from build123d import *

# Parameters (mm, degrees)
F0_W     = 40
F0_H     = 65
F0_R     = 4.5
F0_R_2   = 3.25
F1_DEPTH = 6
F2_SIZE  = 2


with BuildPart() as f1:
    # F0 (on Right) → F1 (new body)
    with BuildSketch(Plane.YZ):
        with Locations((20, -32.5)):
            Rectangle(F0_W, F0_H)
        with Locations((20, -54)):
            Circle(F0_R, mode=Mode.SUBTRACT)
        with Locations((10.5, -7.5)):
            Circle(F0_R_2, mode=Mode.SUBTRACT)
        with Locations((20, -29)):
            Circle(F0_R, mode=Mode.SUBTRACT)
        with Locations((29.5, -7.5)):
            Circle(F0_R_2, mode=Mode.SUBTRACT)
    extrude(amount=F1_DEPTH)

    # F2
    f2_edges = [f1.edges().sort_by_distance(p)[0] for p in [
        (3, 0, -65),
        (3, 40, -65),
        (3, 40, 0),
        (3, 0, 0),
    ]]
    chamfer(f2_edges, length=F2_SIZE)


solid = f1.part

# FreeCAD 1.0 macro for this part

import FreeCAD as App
import Part
import Sketcher
Q = App.Units.Quantity


def edges_at(feature, points):
    """Names of the edges that pass closest to the given points."""
    edges = feature.Shape.Edges
    near = lambda p: min(range(len(edges)), key=lambda i: edges[i].distToShape(Part.Vertex(*p))[0])
    return sorted({f"Edge{near(p) + 1}" for p in points})

doc = App.newDocument("Part")
body = doc.addObject("PartDesign::Body", "Body")

# Sketch on YZ plane
sketch1 = doc.addObject("Sketcher::SketchObject", "Sketch")
body.addObject(sketch1)
sketch1.AttachmentSupport = (doc.YZ_Plane, [""])
sketch1.MapMode = "FlatFace"
sketch1.addGeometry([
    Part.LineSegment(App.Vector(0, 0, 0), App.Vector(0, -65, 0)),  # 0
    Part.LineSegment(App.Vector(0, -65, 0), App.Vector(40, -65, 0)),  # 1
    Part.LineSegment(App.Vector(40, -65, 0), App.Vector(40, 0, 0)),  # 2
    Part.LineSegment(App.Vector(40, 0, 0), App.Vector(0, 0, 0)),  # 3
    Part.Circle(App.Vector(20, -54, 0), App.Vector(0, 0, 1), 4.5),  # 4
    Part.Circle(App.Vector(10.5, -7.5, 0), App.Vector(0, 0, 1), 3.2),  # 5
    Part.Circle(App.Vector(20, -29, 0), App.Vector(0, 0, 1), 4.5),  # 6
    Part.Circle(App.Vector(29.5, -7.5, 0), App.Vector(0, 0, 1), 3.2),  # 7
], False)
sketch1.addConstraint([
    Sketcher.Constraint("Coincident", 0, 2, 1, 1),
    Sketcher.Constraint("Coincident", 1, 2, 2, 1),
    Sketcher.Constraint("Coincident", 2, 2, 3, 1),
    Sketcher.Constraint("Coincident", 3, 2, 0, 1),
    Sketcher.Constraint("Vertical", 0),
    Sketcher.Constraint("Horizontal", 1),
    Sketcher.Constraint("Vertical", 2),
    Sketcher.Constraint("Horizontal", 3),
    Sketcher.Constraint("Coincident", 3, 2, -1, 1),
    Sketcher.Constraint("Equal", 4, 6),
    Sketcher.Constraint("Equal", 5, 7),
    Sketcher.Constraint("Horizontal", 5, 3, 7, 3),
    Sketcher.Constraint("Vertical", 4, 3, 6, 3),
    Sketcher.Constraint("Diameter", 4, Q("9 mm")),
    Sketcher.Constraint("Diameter", 5, Q("6.5 mm")),
    Sketcher.Constraint("DistanceX", 1, 1, 1, 2, Q("40 mm")),
    Sketcher.Constraint("DistanceY", 0, 2, 0, 1, Q("65 mm")),
    Sketcher.Constraint("DistanceX", -1, 1, 4, 3, Q("20 mm")),
    Sketcher.Constraint("DistanceY", 4, 3, -1, 1, Q("54 mm")),
    Sketcher.Constraint("DistanceY", 6, 3, -1, 1, Q("29 mm")),
    Sketcher.Constraint("DistanceX", 5, 3, 7, 3, Q("19 mm")),
    Sketcher.Constraint("DistanceX", -1, 1, 5, 3, Q("10.5 mm")),
    Sketcher.Constraint("DistanceY", 5, 3, -1, 1, Q("7.5 mm")),
])
pad1 = doc.addObject("PartDesign::Pad", "Pad")
body.addObject(pad1)
pad1.Profile = sketch1
pad1.Length = 6
doc.recompute()

chamfer = doc.addObject("PartDesign::Chamfer", "Chamfer")
body.addObject(chamfer)
chamfer.Base = (pad1, edges_at(pad1, [
    (3, 0, -65),
    (3, 40, -65),
    (3, 40, 0),
    (3, 0, 0),
]))
chamfer.Size = 2

doc.recompute()
